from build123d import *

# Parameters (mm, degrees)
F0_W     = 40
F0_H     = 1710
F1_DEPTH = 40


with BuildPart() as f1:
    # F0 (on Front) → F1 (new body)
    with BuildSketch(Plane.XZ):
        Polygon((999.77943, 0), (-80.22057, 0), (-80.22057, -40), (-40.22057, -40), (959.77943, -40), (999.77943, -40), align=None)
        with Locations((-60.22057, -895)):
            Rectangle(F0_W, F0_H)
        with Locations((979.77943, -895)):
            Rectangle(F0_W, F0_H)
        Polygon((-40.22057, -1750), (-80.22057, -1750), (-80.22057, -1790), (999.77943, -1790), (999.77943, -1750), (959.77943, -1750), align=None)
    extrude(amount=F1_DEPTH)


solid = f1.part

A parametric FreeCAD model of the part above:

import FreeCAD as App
import Part
import Sketcher
Q = App.Units.Quantity

doc = App.newDocument("Part")
body = doc.addObject("PartDesign::Body", "Body")

sketch1 = doc.addObject("Sketcher::SketchObject", "Sketch")
body.addObject(sketch1)
sketch1.AttachmentSupport = (doc.XZ_Plane, [""])
sketch1.MapMode = "FlatFace"
sketch1.addGeometry([
    Part.LineSegment(App.Vector(999.77943, 0, 0), App.Vector(-80.22057, 0, 0)),
    Part.LineSegment(App.Vector(-80.22057, 0, 0), App.Vector(-80.22057, -1790, 0)),
    Part.LineSegment(App.Vector(-80.22057, -1790, 0), App.Vector(999.77943, -1790, 0)),
    Part.LineSegment(App.Vector(999.77943, -1790, 0), App.Vector(999.77943, 0, 0)),
    Part.LineSegment(App.Vector(-40.22057, -1750, 0), App.Vector(-40.22057, -40, 0)),
    Part.LineSegment(App.Vector(-40.22057, -40, 0), App.Vector(959.77943, -40, 0)),
    Part.LineSegment(App.Vector(959.77943, -40, 0), App.Vector(959.77943, -1750, 0)),
    Part.LineSegment(App.Vector(959.77943, -1750, 0), App.Vector(-40.22057, -1750, 0)),
], False)
sketch1.addConstraint([
    Sketcher.Constraint("Coincident", 0, 2, 1, 1),
    Sketcher.Constraint("Coincident", 1, 2, 2, 1),
    Sketcher.Constraint("Coincident", 2, 2, 3, 1),
    Sketcher.Constraint("Coincident", 3, 2, 0, 1),
    Sketcher.Constraint("Coincident", 4, 2, 5, 1),
    Sketcher.Constraint("Coincident", 5, 2, 6, 1),
    Sketcher.Constraint("Coincident", 6, 2, 7, 1),
    Sketcher.Constraint("Coincident", 7, 2, 4, 1),
    Sketcher.Constraint("Horizontal", 0),
    Sketcher.Constraint("Vertical", 1),
    Sketcher.Constraint("Horizontal", 2),
    Sketcher.Constraint("Vertical", 3),
    Sketcher.Constraint("Vertical", 4),
    Sketcher.Constraint("Horizontal", 5),
    Sketcher.Constraint("Vertical", 6),
    Sketcher.Constraint("Horizontal", 7),
    Sketcher.Constraint("PointOnObject", 0, 2, -1),
    Sketcher.Constraint("DistanceX", 0, 2, 0, 1, Q("1080 mm")),
    Sketcher.Constraint("DistanceX", 5, 1, 5, 2, Q("1000 mm")),
    Sketcher.Constraint("DistanceY", 1, 2, 1, 1, Q("1790 mm")),
    Sketcher.Constraint("DistanceY", 4, 1, 4, 2, Q("1710 mm")),
    Sketcher.Constraint("DistanceY", 4, 2, -1, 1, Q("40 mm")),
    Sketcher.Constraint("DistanceX", 0, 2, 4, 2, Q("40 mm")),
    Sketcher.Constraint("DistanceX", 0, 2, -1, 1, Q("80.22057 mm")),
])
pad1 = doc.addObject("PartDesign::Pad", "Pad")
body.addObject(pad1)
pad1.Profile = sketch1
pad1.Length = 40

doc.recompute()
